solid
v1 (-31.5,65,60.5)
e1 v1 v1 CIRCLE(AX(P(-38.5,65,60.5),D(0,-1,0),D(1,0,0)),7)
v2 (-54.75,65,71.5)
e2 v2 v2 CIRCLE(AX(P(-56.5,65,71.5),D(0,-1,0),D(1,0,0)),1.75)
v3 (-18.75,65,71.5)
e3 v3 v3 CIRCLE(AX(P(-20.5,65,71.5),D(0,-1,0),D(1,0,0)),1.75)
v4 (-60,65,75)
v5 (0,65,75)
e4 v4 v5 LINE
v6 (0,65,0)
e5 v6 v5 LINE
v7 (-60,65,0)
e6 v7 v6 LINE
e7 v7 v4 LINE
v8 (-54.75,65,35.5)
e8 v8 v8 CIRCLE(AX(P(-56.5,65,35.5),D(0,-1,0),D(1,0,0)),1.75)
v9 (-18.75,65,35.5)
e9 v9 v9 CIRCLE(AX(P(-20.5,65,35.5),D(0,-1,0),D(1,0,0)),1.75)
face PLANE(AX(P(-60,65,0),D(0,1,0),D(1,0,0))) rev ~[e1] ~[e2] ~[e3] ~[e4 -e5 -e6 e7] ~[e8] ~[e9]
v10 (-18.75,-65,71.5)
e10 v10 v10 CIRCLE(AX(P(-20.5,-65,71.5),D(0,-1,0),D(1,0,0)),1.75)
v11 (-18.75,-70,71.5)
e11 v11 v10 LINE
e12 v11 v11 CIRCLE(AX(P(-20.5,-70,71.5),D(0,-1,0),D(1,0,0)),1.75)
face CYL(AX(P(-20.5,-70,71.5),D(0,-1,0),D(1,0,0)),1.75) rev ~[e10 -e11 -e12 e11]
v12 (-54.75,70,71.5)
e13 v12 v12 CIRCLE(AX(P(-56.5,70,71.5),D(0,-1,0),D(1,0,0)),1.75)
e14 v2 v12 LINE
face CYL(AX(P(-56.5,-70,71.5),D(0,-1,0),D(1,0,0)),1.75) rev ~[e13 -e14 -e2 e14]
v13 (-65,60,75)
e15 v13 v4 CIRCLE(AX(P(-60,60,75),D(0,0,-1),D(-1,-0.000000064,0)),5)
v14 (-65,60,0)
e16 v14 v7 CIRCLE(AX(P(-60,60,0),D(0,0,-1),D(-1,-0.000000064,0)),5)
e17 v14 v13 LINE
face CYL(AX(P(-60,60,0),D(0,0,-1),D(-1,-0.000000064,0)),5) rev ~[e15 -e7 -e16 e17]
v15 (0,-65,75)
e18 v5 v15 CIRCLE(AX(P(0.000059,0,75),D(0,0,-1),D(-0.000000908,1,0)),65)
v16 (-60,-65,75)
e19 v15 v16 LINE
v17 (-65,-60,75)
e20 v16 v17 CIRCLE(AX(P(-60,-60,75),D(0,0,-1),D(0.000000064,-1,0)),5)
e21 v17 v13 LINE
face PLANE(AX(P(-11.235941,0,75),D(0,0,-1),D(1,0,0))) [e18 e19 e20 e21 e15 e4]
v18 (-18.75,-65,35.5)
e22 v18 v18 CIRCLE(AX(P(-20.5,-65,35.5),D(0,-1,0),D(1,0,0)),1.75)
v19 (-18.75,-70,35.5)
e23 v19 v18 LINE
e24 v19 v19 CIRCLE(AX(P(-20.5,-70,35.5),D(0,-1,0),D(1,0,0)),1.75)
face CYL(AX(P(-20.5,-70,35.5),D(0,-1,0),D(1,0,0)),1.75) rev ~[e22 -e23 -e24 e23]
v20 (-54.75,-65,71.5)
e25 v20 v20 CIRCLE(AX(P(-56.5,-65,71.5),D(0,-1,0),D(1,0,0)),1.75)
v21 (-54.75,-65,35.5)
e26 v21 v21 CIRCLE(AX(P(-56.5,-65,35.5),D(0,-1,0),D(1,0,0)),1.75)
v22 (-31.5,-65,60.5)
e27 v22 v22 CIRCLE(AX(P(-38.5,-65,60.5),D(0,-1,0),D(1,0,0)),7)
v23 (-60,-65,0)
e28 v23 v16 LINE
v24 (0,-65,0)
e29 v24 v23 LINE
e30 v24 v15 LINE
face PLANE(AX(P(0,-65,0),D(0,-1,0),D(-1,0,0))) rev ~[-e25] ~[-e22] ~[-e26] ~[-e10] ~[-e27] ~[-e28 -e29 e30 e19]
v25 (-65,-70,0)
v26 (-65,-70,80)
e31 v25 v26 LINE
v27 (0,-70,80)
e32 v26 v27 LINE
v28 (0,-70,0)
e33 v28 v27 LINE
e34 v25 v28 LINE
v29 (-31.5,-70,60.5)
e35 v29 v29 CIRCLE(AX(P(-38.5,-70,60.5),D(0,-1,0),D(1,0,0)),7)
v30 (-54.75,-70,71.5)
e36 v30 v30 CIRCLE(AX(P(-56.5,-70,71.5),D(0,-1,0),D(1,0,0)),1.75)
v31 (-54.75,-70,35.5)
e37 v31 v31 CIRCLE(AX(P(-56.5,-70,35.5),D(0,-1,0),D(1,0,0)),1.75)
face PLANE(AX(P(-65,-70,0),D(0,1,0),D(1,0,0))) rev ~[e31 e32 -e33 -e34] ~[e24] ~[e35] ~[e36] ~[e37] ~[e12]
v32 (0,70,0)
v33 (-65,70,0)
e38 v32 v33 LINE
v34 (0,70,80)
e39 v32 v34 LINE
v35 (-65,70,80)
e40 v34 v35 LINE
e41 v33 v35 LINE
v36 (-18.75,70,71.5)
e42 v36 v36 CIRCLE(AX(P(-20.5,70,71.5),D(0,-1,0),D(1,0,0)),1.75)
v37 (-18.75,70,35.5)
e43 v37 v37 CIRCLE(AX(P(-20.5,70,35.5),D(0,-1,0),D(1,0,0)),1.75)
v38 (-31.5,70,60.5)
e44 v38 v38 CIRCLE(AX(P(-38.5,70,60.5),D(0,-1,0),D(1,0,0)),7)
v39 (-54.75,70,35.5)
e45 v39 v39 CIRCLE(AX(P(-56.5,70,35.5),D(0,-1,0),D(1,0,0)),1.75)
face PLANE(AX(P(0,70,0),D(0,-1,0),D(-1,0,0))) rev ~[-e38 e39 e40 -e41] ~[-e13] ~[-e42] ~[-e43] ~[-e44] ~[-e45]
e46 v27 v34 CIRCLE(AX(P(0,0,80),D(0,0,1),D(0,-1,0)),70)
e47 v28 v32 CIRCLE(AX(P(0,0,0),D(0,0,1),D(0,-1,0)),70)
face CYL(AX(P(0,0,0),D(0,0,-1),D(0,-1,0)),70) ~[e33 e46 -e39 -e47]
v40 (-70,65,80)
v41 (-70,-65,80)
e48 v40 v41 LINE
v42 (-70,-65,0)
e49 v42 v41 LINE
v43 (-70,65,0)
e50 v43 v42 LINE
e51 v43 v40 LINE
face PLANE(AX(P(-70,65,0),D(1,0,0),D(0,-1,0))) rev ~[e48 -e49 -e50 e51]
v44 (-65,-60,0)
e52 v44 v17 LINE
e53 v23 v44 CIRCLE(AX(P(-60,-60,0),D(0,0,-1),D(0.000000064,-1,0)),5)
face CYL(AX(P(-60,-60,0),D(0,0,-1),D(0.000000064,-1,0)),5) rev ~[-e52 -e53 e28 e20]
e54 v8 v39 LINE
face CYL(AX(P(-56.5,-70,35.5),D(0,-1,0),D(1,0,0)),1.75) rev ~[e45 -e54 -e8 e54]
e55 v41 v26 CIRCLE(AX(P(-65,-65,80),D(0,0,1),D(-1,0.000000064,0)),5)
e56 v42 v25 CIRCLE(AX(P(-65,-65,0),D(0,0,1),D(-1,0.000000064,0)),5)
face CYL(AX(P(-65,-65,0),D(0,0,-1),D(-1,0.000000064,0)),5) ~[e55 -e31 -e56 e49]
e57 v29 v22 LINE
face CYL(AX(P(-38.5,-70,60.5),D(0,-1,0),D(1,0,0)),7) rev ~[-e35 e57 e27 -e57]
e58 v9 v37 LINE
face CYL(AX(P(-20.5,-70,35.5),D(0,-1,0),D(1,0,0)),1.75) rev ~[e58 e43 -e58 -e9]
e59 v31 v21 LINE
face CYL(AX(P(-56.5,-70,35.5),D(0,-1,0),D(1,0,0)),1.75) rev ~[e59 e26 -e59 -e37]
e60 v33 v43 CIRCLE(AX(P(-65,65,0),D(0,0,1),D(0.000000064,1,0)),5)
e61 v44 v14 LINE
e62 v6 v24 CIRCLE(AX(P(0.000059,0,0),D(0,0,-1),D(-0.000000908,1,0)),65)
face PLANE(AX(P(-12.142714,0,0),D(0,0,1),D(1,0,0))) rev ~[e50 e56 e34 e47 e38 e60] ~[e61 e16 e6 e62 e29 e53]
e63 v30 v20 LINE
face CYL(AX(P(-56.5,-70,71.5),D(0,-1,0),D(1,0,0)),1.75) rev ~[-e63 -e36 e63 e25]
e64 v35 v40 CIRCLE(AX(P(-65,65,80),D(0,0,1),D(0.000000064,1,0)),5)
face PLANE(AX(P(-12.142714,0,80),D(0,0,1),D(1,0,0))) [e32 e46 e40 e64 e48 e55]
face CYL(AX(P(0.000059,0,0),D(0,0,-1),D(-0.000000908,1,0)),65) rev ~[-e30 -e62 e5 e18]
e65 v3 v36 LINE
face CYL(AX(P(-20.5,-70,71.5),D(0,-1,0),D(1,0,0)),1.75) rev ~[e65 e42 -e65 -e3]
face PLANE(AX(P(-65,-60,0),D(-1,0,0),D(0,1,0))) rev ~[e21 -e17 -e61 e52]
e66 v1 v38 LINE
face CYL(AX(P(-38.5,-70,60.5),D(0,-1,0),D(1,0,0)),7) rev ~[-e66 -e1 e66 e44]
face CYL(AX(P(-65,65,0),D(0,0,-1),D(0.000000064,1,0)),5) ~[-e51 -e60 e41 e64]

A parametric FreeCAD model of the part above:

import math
import FreeCAD as App
import Part
import Sketcher

V = App.Vector

doc = App.newDocument("Part")
body = doc.addObject("PartDesign::Body", "Body")

# Sketch on XY plane
sketch1 = body.newObject("Sketcher::SketchObject", "Sketch")
sketch1.AttachmentSupport = (doc.getObject("XY_Plane"), [""])
sketch1.MapMode = "FlatFace"
sketch1.addGeometry([
    Part.LineSegment(V(0, 70, 0), V(-65, 70, 0)),  # 0
    Part.ArcOfCircle(Part.Circle(V(-65, 65, 0), V(0, 0, 1), 5), math.radians(89.999996), math.radians(180.000004)),  # 1
    Part.LineSegment(V(-70, 65, 0), V(-70, -65, 0)),  # 2
    Part.ArcOfCircle(Part.Circle(V(-65, -65, 0), V(0, 0, 1), 5), math.radians(179.999996), math.radians(270.000004)),  # 3
    Part.LineSegment(V(-65, -70, 0), V(0, -70, 0)),  # 4
    Part.ArcOfCircle(Part.Circle(V(0, 0, 0), V(0, 0, 1), 70), math.radians(-90), math.radians(90)),  # 5
], False)
sketch1.addConstraint([
    Sketcher.Constraint("Tangent", 0, 2, 1, 1),
    Sketcher.Constraint("Tangent", 1, 2, 2, 1),
    Sketcher.Constraint("Tangent", 2, 2, 3, 1),
    Sketcher.Constraint("Tangent", 3, 2, 4, 1),
    Sketcher.Constraint("Tangent", 4, 2, 5, 1),
    Sketcher.Constraint("Tangent", 5, 2, 0, 1),
    Sketcher.Constraint("Horizontal", 0),
    Sketcher.Constraint("Vertical", 2),
    Sketcher.Constraint("Horizontal", 4),
    Sketcher.Constraint("Coincident", 5, 3, -1, 1),
    Sketcher.Constraint("Equal", 1, 3),
    Sketcher.Constraint("Radius", 1, 5.0),
    Sketcher.Constraint("Radius", 5, 70.0),
    Sketcher.Constraint("DistanceX", 0, 2, 0, 1, 65.0),
])
pad1 = body.newObject("PartDesign::Pad", "Pad")
pad1.Profile = sketch1
pad1.Length = 80

# Sketch on XY plane
sketch2 = body.newObject("Sketcher::SketchObject", "Sketch001")
sketch2.AttachmentSupport = (doc.getObject("XY_Plane"), [""])
sketch2.MapMode = "FlatFace"
sketch2.addGeometry([
    Part.ArcOfCircle(Part.Circle(V(0.000059, 0, 0), V(0, 0, 1), 65), math.radians(-90.000052), math.radians(90.000052)),  # 0
    Part.LineSegment(V(0, -65, 0), V(-60, -65, 0)),  # 1
    Part.ArcOfCircle(Part.Circle(V(-60, -60, 0), V(0, 0, 1), 5), math.radians(179.999996), math.radians(270.000004)),  # 2
    Part.LineSegment(V(-65, -60, 0), V(-65, 60, 0)),  # 3
    Part.ArcOfCircle(Part.Circle(V(-60, 60, 0), V(0, 0, 1), 5), math.radians(89.999996), math.radians(180.000004)),  # 4
    Part.LineSegment(V(-60, 65, 0), V(0, 65, 0)),  # 5
], False)
sketch2.addConstraint([
    Sketcher.Constraint("Coincident", 0, 1, 1, 1),
    Sketcher.Constraint("Coincident", 1, 2, 2, 2),
    Sketcher.Constraint("Coincident", 2, 1, 3, 1),
    Sketcher.Constraint("Coincident", 3, 2, 4, 2),
    Sketcher.Constraint("Coincident", 4, 1, 5, 1),
    Sketcher.Constraint("Coincident", 5, 2, 0, 2),
    Sketcher.Constraint("Horizontal", 1),
    Sketcher.Constraint("Vertical", 3),
    Sketcher.Constraint("Horizontal", 5),
    Sketcher.Constraint("PointOnObject", 0, 3, -1),
    Sketcher.Constraint("PointOnObject", 0, 1, -2),
    Sketcher.Constraint("PointOnObject", 5, 2, -2),
    Sketcher.Constraint("Radius", 0, 65.0),
    Sketcher.Constraint("Radius", 2, 5.0),
    Sketcher.Constraint("Radius", 4, 5.0),
    Sketcher.Constraint("DistanceX", 1, 2, 1, 1, 60.0),
    Sketcher.Constraint("DistanceX", 5, 1, 5, 2, 60.0),
    Sketcher.Constraint("DistanceY", 3, 1, 3, 2, 120.0),
    Sketcher.Constraint("DistanceX", 2, 3, -1, 1, 60.0),
    Sketcher.Constraint("DistanceY", 2, 1, -1, 1, 60.0),
    Sketcher.Constraint("DistanceX", 2, 3, 0, 3, 60.000059),
])
pocket1 = body.newObject("PartDesign::Pocket", "Pocket")
pocket1.Profile = sketch2
pocket1.Length = 75
pocket1.Reversed = True

# Sketch on XZ plane
sketch3 = body.newObject("Sketcher::SketchObject", "Sketch002")
sketch3.AttachmentSupport = (doc.getObject("XZ_Plane"), [""])
sketch3.MapMode = "FlatFace"
sketch3.AttachmentOffset = App.Placement(V(0, 0, 70), App.Rotation())
sketch3.addGeometry([
    Part.Circle(V(-38.5, 60.5, 0), V(0, 0, 1), 7),  # 0
    Part.Circle(V(-56.5, 71.5, 0), V(0, 0, 1), 1.75),  # 1
    Part.Circle(V(-56.5, 35.5, 0), V(0, 0, 1), 1.75),  # 2
    Part.Circle(V(-20.5, 71.5, 0), V(0, 0, 1), 1.75),  # 3
    Part.Circle(V(-20.5, 35.5, 0), V(0, 0, 1), 1.75),  # 4
], False)
sketch3.addConstraint([
    Sketcher.Constraint("Equal", 1, 2),
    Sketcher.Constraint("Equal", 2, 3),
    Sketcher.Constraint("Equal", 3, 4),
    Sketcher.Constraint("Horizontal", 1, 3, 3, 3),
    Sketcher.Constraint("Horizontal", 2, 3, 4, 3),
    Sketcher.Constraint("Vertical", 1, 3, 2, 3),
    Sketcher.Constraint("Vertical", 3, 3, 4, 3),
    Sketcher.Constraint("Diameter", 0, 14.0),
    Sketcher.Constraint("Diameter", 1, 3.5),
    Sketcher.Constraint("DistanceX", 1, 3, 0, 3, 18.0),
    Sketcher.Constraint("DistanceY", 0, 3, 1, 3, 11.0),
    Sketcher.Constraint("DistanceY", 2, 3, 0, 3, 25.0),
    Sketcher.Constraint("DistanceX", 0, 3, 3, 3, 18.0),
    Sketcher.Constraint("DistanceX", 0, 3, -1, 1, 38.5),
    Sketcher.Constraint("DistanceY", -1, 1, 0, 3, 60.5),
])
pocket2 = body.newObject("PartDesign::Pocket", "Pocket001")
pocket2.Profile = sketch3
pocket2.Length = 140

doc.recompute()
